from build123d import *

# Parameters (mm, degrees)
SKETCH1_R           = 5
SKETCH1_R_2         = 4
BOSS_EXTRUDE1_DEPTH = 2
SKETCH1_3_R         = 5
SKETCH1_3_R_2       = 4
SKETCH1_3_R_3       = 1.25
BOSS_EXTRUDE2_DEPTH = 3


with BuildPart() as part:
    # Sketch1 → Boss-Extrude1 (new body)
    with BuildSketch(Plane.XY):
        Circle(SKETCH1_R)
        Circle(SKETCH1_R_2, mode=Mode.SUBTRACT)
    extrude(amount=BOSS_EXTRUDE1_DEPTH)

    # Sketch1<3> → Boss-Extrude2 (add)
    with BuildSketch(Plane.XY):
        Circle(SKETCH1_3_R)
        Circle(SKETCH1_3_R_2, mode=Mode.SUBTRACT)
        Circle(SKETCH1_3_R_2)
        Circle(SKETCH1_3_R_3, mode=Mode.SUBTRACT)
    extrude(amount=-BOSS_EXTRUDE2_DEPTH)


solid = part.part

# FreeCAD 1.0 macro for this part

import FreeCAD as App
import Part
import Sketcher

V = App.Vector

doc = App.newDocument("Part")
params = doc.addObject("Spreadsheet::Sheet", "Params")
for row, (alias, value) in enumerate([
    ("sketch1_diameter", "10 mm"),
    ("sketch1_diameter2", "8 mm"),
    ("pad1_length", "2 mm"),
    ("sketch2_diameter", "10 mm"),
    ("sketch2_diameter2", "2.5 mm"),
    ("pad2_length", "3 mm"),
], start=1):
    params.set(f"A{row}", alias)
    params.set(f"B{row}", "=" + value)
    params.setAlias(f"B{row}", alias)

body = doc.addObject("PartDesign::Body", "Body")

# Sketch on XY plane
sketch1 = body.newObject("Sketcher::SketchObject", "Sketch")
sketch1.AttachmentSupport = (doc.getObject("XY_Plane"), [""])
sketch1.MapMode = "FlatFace"
sketch1.addGeometry([
    Part.Circle(V(0, 0, 0), V(0, 0, 1), 5),
    Part.Circle(V(0, 0, 0), V(0, 0, 1), 4),
], False)
sketch1.addConstraint([
    Sketcher.Constraint("Coincident", 0, 3, -1, 1),
    Sketcher.Constraint("Coincident", 1, 3, -1, 1),
    Sketcher.Constraint("Diameter", 0, 10.0),
    Sketcher.Constraint("Diameter", 1, 8.0),
])
sketch1.setExpression("Constraints[2]", "Params.sketch1_diameter")
sketch1.setExpression("Constraints[3]", "Params.sketch1_diameter2")
pad1 = body.newObject("PartDesign::Pad", "Pad")
pad1.Profile = sketch1
pad1.setExpression("Length", "Params.pad1_length")

# Sketch on XY plane
sketch2 = body.newObject("Sketcher::SketchObject", "Sketch001")
sketch2.AttachmentSupport = (doc.getObject("XY_Plane"), [""])
sketch2.MapMode = "FlatFace"
sketch2.addGeometry([
    Part.Circle(V(0, 0, 0), V(0, 0, 1), 5),
    Part.Circle(V(0, 0, 0), V(0, 0, 1), 1.2),
], False)
sketch2.addConstraint([
    Sketcher.Constraint("Coincident", 0, 3, -1, 1),
    Sketcher.Constraint("Coincident", 1, 3, -1, 1),
    Sketcher.Constraint("Diameter", 0, 10.0),
    Sketcher.Constraint("Diameter", 1, 2.5),
])
sketch2.setExpression("Constraints[2]", "Params.sketch2_diameter")
sketch2.setExpression("Constraints[3]", "Params.sketch2_diameter2")
pad2 = body.newObject("PartDesign::Pad", "Pad001")
pad2.Profile = sketch2
pad2.setExpression("Length", "Params.pad2_length")
pad2.Reversed = True

doc.recompute()
